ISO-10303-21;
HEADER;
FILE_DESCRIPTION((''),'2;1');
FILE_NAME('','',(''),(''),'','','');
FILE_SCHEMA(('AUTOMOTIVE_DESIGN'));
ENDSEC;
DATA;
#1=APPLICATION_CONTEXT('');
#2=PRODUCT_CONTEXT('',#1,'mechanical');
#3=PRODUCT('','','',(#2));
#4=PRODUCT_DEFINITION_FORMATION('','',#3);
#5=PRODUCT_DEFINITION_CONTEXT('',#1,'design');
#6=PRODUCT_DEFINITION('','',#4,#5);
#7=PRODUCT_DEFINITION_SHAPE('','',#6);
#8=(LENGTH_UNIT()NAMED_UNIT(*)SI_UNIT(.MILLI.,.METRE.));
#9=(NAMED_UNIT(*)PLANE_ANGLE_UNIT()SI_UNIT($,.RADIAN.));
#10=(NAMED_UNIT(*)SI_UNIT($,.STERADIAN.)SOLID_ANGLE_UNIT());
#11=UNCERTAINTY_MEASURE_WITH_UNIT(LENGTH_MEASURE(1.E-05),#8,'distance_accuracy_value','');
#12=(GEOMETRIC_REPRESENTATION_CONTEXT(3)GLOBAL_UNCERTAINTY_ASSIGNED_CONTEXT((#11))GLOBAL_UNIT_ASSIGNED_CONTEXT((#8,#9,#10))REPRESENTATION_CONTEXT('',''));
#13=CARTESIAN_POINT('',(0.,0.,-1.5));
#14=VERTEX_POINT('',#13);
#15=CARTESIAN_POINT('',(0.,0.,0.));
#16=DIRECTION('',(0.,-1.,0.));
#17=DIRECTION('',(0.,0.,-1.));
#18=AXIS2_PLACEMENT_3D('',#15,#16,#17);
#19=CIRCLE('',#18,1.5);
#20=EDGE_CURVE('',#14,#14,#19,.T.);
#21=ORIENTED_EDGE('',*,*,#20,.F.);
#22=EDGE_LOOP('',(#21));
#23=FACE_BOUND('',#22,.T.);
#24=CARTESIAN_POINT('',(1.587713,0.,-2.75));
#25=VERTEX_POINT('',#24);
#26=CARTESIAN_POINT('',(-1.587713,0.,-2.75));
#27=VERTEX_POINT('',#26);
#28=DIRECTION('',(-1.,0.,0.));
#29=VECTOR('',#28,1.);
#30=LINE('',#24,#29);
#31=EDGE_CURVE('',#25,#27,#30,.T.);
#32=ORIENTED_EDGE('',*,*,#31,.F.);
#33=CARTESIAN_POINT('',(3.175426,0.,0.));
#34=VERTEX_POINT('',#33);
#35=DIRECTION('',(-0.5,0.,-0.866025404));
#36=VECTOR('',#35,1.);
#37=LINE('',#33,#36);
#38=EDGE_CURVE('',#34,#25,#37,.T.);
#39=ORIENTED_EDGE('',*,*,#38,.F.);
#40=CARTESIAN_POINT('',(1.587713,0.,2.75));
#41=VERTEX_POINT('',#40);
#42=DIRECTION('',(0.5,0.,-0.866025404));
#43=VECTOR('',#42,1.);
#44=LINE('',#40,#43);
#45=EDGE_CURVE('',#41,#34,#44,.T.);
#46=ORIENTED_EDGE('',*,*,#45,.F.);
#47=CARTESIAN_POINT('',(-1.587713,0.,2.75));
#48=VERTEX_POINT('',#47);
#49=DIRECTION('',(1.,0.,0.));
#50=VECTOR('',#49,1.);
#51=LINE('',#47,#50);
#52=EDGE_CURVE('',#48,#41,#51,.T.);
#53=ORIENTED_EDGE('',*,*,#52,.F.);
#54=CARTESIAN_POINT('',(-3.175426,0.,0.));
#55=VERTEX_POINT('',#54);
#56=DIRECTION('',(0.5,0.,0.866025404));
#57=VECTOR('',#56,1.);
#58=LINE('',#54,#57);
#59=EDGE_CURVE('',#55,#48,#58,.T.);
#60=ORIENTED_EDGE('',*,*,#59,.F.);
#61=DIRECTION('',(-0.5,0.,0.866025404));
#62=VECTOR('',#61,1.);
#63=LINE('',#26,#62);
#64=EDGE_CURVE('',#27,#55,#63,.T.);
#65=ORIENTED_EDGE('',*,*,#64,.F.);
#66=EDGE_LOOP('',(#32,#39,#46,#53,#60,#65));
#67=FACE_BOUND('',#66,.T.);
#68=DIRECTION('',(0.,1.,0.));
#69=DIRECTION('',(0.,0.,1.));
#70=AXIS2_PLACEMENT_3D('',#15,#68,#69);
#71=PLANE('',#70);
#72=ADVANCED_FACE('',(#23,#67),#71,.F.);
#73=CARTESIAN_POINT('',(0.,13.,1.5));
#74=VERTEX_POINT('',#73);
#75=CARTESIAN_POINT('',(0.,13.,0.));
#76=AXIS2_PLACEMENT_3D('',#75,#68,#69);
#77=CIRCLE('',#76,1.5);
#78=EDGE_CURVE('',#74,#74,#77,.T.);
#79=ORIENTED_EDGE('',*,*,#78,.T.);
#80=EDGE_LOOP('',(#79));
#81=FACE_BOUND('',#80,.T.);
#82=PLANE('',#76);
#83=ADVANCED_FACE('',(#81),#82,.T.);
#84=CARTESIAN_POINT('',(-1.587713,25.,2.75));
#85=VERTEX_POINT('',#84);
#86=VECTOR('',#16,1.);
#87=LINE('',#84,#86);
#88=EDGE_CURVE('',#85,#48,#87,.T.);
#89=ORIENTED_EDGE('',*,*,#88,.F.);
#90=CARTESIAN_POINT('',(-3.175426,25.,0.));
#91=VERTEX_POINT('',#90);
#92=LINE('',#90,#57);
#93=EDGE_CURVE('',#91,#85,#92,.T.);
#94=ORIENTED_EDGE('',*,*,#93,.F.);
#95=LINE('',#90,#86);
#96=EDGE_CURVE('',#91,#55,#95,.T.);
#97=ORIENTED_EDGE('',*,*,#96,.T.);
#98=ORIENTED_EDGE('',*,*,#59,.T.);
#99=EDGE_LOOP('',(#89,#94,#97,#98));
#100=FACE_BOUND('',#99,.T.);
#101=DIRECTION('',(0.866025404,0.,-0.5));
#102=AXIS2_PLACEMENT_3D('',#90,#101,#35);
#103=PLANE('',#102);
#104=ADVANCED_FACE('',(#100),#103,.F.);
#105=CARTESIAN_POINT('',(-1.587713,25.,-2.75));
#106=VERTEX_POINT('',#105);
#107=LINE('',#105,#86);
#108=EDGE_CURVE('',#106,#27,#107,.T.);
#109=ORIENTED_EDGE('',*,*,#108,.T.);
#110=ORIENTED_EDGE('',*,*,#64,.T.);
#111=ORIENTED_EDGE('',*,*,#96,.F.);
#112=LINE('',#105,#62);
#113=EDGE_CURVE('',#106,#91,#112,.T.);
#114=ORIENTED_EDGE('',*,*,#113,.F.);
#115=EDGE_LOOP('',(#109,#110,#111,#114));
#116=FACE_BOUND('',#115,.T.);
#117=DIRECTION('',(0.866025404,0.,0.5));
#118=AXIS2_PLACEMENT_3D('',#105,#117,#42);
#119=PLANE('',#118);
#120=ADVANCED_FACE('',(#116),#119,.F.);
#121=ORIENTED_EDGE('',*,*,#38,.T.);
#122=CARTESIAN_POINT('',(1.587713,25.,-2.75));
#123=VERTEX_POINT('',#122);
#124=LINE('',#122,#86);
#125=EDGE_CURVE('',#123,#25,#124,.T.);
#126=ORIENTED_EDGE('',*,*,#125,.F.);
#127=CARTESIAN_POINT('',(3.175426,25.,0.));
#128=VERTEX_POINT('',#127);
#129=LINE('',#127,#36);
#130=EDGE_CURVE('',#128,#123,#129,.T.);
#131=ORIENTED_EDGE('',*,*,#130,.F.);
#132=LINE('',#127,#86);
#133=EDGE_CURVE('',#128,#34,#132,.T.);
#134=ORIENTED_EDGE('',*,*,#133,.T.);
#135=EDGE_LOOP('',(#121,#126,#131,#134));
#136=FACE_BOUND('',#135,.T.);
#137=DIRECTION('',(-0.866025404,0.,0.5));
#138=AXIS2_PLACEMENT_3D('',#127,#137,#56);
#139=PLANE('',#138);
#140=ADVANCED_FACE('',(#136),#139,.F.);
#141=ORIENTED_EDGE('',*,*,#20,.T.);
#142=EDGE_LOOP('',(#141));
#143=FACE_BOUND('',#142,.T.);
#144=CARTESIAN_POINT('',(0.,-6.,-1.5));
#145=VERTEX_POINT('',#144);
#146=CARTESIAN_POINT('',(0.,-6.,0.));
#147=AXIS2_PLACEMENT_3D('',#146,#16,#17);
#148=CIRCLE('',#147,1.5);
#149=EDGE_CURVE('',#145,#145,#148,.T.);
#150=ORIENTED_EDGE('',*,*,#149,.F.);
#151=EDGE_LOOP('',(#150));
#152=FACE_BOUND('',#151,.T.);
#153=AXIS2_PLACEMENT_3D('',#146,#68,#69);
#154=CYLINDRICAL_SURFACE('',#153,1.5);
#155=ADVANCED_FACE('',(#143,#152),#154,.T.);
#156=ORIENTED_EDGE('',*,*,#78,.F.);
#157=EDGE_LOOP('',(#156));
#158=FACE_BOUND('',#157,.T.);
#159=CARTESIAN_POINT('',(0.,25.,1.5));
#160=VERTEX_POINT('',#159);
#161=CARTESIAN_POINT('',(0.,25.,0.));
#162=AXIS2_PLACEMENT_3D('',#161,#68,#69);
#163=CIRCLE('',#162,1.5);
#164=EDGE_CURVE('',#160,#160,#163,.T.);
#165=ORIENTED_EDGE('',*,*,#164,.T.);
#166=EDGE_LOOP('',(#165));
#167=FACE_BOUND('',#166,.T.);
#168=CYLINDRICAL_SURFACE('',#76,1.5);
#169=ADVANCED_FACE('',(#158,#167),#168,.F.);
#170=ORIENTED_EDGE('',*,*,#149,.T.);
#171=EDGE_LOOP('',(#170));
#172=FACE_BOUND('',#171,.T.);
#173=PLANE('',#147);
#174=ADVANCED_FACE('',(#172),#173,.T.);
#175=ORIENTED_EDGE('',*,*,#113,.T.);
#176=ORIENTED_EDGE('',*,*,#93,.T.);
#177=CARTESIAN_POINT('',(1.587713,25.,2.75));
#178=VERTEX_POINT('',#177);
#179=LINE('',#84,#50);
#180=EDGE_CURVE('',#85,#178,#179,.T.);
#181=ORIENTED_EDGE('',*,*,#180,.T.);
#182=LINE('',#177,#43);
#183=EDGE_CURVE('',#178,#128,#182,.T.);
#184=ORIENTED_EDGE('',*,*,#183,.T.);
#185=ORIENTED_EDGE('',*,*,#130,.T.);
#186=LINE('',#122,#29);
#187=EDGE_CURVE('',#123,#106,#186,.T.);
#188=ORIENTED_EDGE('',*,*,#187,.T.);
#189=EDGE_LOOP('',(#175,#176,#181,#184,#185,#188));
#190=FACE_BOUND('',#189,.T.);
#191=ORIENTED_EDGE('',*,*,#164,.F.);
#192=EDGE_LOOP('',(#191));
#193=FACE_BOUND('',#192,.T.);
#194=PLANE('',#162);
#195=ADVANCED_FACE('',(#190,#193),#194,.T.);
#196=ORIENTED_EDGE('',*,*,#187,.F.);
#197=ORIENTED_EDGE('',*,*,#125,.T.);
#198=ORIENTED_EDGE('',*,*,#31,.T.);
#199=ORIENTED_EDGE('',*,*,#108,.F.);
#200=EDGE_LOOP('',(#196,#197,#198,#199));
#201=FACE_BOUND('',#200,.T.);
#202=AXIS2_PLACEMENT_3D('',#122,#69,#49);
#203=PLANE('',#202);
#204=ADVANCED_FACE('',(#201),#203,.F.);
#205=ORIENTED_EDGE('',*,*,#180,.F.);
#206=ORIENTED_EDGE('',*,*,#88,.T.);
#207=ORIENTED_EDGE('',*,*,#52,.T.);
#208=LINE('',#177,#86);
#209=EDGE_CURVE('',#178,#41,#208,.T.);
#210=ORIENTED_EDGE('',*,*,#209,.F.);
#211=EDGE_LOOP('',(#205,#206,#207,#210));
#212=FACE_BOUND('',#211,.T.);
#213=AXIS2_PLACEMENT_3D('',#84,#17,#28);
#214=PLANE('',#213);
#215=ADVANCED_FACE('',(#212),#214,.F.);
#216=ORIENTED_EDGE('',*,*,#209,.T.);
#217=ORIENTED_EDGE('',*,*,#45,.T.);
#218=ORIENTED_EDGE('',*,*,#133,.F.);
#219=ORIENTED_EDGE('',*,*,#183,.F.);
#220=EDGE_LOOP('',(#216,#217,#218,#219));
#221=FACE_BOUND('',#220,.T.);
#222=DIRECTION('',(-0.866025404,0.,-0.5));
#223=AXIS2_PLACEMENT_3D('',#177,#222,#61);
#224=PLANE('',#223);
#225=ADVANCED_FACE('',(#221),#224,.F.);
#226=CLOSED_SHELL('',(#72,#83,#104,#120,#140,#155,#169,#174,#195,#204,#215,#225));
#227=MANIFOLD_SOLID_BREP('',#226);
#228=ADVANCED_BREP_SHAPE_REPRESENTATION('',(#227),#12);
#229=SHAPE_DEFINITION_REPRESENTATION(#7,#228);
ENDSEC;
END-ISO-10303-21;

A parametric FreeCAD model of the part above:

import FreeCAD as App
import Part
import Sketcher
from FreeCAD import Vector
Q = App.Units.Quantity


def add_polygon(sketch, points):
    """Adds a closed chain of lines whose ends are joined by coincident constraints."""
    first, n = sketch.GeometryCount, len(points)
    for a, b in zip(points, points[1:] + points[:1]):
        sketch.addGeometry(Part.LineSegment(App.Vector(*a, 0), App.Vector(*b, 0)), False)
    for i in range(n):
        sketch.addConstraint(Sketcher.Constraint("Coincident", first + i, 2, first + (i + 1) % n, 1))

doc = App.newDocument("Part")
params = doc.addObject("Spreadsheet::Sheet", "Params")
for row, (alias, value) in enumerate([
    ("pad1_length", "25 mm"),
    ("sketch2_diameter", "3 mm"),
    ("pocket1_length", "12 mm"),
    ("sketch3_diameter", "3 mm"),
    ("pad2_length", "6 mm"),
], start=1):
    params.set(f"A{row}", alias)
    params.set(f"B{row}", "=" + value)
    params.setAlias(f"B{row}", alias)

body = doc.addObject("PartDesign::Body", "Body")

# Sketch on XZ plane
sketch1 = body.newObject("Sketcher::SketchObject", "Sketch")
sketch1.AttachmentSupport = (doc.getObject("XZ_Plane"), [""])
sketch1.MapMode = "FlatFace"
add_polygon(sketch1, [(3.2, 0), (1.6, -2.8), (-1.6, -2.8), (-3.2, 0), (-1.6, 2.8), (1.6, 2.8)])  # lines 0-5
sketch1.addConstraint([
    Sketcher.Constraint("Horizontal", 1),
    Sketcher.Constraint("Horizontal", 4),
    Sketcher.Constraint("Symmetric", 0, 2, 3, 2, -1, 1),
    Sketcher.Constraint("Symmetric", 2, 2, 5, 2, -1, 1),
    Sketcher.Constraint("PointOnObject", 2, 2, -1),
    Sketcher.Constraint("Parallel", 2, 5),
    Sketcher.Constraint("Vertical", 1, 2, 3, 2),
    Sketcher.Constraint("Angle", 0, Q("-120 deg")),
    Sketcher.Constraint("DistanceY", 1, 2, 3, 2, Q("5.5 mm")),
    Sketcher.Constraint("DistanceX", 1, 2, 1, 1, Q("3.175426 mm")),
])
pad1 = body.newObject("PartDesign::Pad", "Pad")
pad1.Profile = sketch1
pad1.setExpression("Length", "Params.pad1_length")
pad1.Reversed = True

# Sketch on XZ plane
sketch2 = body.newObject("Sketcher::SketchObject", "Sketch001")
sketch2.AttachmentSupport = (doc.getObject("XZ_Plane"), [""])
sketch2.MapMode = "FlatFace"
sketch2.AttachmentOffset = App.Placement(Vector(0, 0, -25), App.Rotation())
sketch2.addGeometry(Part.Circle(Vector(0, 0, 0), Vector(0, 0, 1), 1.5), False)
sketch2.addConstraint([
    Sketcher.Constraint("Coincident", 0, 3, -1, 1),
    Sketcher.Constraint("Diameter", 0, Q("3 mm")),
])
sketch2.setExpression("Constraints[1]", "Params.sketch2_diameter")
pocket1 = body.newObject("PartDesign::Pocket", "Pocket")
pocket1.Profile = sketch2
pocket1.setExpression("Length", "Params.pocket1_length")
pocket1.Reversed = True

# Sketch on XZ plane
sketch3 = body.newObject("Sketcher::SketchObject", "Sketch002")
sketch3.AttachmentSupport = (doc.getObject("XZ_Plane"), [""])
sketch3.MapMode = "FlatFace"
sketch3.addGeometry(Part.Circle(Vector(0, 0, 0), Vector(0, 0, 1), 1.5), False)
sketch3.addConstraint([
    Sketcher.Constraint("Coincident", 0, 3, -1, 1),
    Sketcher.Constraint("Diameter", 0, Q("3 mm")),
])
sketch3.setExpression("Constraints[1]", "Params.sketch3_diameter")
pad2 = body.newObject("PartDesign::Pad", "Pad001")
pad2.Profile = sketch3
pad2.setExpression("Length", "Params.pad2_length")

doc.recompute()
